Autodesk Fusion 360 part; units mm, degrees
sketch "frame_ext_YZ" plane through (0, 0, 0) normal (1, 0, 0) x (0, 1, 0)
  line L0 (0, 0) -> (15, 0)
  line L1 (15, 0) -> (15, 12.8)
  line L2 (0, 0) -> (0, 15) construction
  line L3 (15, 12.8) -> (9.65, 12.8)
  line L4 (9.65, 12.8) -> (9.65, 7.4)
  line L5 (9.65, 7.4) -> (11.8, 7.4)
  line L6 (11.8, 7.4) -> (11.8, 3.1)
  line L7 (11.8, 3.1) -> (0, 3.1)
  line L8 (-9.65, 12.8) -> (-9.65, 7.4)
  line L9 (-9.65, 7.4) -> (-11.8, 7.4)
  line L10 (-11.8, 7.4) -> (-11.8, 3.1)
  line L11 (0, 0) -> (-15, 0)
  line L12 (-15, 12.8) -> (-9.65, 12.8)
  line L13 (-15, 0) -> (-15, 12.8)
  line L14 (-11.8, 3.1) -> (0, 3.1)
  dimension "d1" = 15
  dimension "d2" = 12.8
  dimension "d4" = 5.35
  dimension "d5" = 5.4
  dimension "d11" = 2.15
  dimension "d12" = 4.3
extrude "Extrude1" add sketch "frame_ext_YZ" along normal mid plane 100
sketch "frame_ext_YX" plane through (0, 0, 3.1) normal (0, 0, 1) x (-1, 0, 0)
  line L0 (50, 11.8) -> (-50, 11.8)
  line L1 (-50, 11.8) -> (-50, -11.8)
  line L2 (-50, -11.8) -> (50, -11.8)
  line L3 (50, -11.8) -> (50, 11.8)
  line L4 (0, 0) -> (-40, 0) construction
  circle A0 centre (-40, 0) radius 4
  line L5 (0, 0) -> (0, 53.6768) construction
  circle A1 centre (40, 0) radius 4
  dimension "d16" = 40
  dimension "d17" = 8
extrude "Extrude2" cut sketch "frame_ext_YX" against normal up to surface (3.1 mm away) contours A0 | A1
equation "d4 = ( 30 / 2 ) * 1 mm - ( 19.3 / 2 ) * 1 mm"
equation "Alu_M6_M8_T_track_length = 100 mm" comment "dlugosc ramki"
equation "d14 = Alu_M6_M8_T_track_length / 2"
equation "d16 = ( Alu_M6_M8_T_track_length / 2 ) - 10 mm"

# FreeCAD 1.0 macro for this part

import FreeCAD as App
import Part
import Sketcher
from FreeCAD import Vector
Q = App.Units.Quantity


def add_polygon(sketch, points):
    """Adds a closed chain of lines whose ends are joined by coincident constraints."""
    first, n = sketch.GeometryCount, len(points)
    for a, b in zip(points, points[1:] + points[:1]):
        sketch.addGeometry(Part.LineSegment(App.Vector(*a, 0), App.Vector(*b, 0)), False)
    for i in range(n):
        sketch.addConstraint(Sketcher.Constraint("Coincident", first + i, 2, first + (i + 1) % n, 1))

doc = App.newDocument("Part")
body = doc.addObject("PartDesign::Body", "Body")

sketch1 = doc.addObject("Sketcher::SketchObject", "Sketch")
body.addObject(sketch1)
sketch1.AttachmentSupport = (doc.YZ_Plane, [""])
sketch1.MapMode = "FlatFace"
add_polygon(sketch1, [(-15, 0), (15, 0), (15, 12.8), (9.7, 12.8), (9.7, 7.4), (11.8, 7.4), (11.8, 3.1), (-11.8, 3.1), (-11.8, 7.4), (-9.7, 7.4), (-9.7, 12.8), (-15, 12.8)])
sketch1.addConstraint([
    Sketcher.Constraint("Horizontal", 0),
    Sketcher.Constraint("Vertical", 1),
    Sketcher.Constraint("Horizontal", 2),
    Sketcher.Constraint("Vertical", 3),
    Sketcher.Constraint("Horizontal", 4),
    Sketcher.Constraint("Vertical", 5),
    Sketcher.Constraint("Horizontal", 6),
    Sketcher.Constraint("Vertical", 7),
    Sketcher.Constraint("Horizontal", 8),
    Sketcher.Constraint("Vertical", 9),
    Sketcher.Constraint("Horizontal", 10),
    Sketcher.Constraint("Vertical", 11),
    Sketcher.Constraint("Symmetric", 0, 2, 11, 2, -1, 1),
    Sketcher.Constraint("Symmetric", 4, 2, 7, 2, -2),
    Sketcher.Constraint("Symmetric", 2, 2, 9, 2, -2),
    Sketcher.Constraint("DistanceY", 1, 1, 1, 2, Q("12.8 mm")),
    Sketcher.Constraint("DistanceY", 3, 2, 3, 1, Q("5.4 mm")),
    Sketcher.Constraint("DistanceY", 5, 2, 5, 1, Q("4.3 mm")),
    Sketcher.Constraint("DistanceX", -1, 1, 0, 2, Q("15 mm")),
    Sketcher.Constraint("DistanceX", 2, 2, 2, 1, Q("5.35 mm")),
    Sketcher.Constraint("DistanceX", 4, 1, 4, 2, Q("2.15 mm")),
])
pad1 = doc.addObject("PartDesign::Pad", "Pad")
body.addObject(pad1)
pad1.Profile = sketch1
pad1.Length = 100
pad1.Midplane = True

sketch2 = doc.addObject("Sketcher::SketchObject", "Sketch001")
body.addObject(sketch2)
sketch2.AttachmentSupport = (doc.XY_Plane, [""])
sketch2.MapMode = "FlatFace"
sketch2.AttachmentOffset = App.Placement(Vector(0, 0, 3.1), App.Rotation())
sketch2.addGeometry([
    Part.Circle(Vector(40, 0, 0), Vector(0, 0, 1), 4),
    Part.Circle(Vector(-40, 0, 0), Vector(0, 0, 1), 4),
], False)
sketch2.addConstraint([
    Sketcher.Constraint("Equal", 0, 1),
    Sketcher.Constraint("Symmetric", 0, 3, 1, 3, -1, 1),
    Sketcher.Constraint("PointOnObject", 0, 3, -1),
    Sketcher.Constraint("Diameter", 0, Q("8 mm")),
    Sketcher.Constraint("DistanceX", -1, 1, 0, 3, Q("40 mm")),
])
pocket1 = doc.addObject("PartDesign::Pocket", "Pocket")
body.addObject(pocket1)
pocket1.Profile = sketch2
pocket1.Length = 3.1

doc.recompute()
